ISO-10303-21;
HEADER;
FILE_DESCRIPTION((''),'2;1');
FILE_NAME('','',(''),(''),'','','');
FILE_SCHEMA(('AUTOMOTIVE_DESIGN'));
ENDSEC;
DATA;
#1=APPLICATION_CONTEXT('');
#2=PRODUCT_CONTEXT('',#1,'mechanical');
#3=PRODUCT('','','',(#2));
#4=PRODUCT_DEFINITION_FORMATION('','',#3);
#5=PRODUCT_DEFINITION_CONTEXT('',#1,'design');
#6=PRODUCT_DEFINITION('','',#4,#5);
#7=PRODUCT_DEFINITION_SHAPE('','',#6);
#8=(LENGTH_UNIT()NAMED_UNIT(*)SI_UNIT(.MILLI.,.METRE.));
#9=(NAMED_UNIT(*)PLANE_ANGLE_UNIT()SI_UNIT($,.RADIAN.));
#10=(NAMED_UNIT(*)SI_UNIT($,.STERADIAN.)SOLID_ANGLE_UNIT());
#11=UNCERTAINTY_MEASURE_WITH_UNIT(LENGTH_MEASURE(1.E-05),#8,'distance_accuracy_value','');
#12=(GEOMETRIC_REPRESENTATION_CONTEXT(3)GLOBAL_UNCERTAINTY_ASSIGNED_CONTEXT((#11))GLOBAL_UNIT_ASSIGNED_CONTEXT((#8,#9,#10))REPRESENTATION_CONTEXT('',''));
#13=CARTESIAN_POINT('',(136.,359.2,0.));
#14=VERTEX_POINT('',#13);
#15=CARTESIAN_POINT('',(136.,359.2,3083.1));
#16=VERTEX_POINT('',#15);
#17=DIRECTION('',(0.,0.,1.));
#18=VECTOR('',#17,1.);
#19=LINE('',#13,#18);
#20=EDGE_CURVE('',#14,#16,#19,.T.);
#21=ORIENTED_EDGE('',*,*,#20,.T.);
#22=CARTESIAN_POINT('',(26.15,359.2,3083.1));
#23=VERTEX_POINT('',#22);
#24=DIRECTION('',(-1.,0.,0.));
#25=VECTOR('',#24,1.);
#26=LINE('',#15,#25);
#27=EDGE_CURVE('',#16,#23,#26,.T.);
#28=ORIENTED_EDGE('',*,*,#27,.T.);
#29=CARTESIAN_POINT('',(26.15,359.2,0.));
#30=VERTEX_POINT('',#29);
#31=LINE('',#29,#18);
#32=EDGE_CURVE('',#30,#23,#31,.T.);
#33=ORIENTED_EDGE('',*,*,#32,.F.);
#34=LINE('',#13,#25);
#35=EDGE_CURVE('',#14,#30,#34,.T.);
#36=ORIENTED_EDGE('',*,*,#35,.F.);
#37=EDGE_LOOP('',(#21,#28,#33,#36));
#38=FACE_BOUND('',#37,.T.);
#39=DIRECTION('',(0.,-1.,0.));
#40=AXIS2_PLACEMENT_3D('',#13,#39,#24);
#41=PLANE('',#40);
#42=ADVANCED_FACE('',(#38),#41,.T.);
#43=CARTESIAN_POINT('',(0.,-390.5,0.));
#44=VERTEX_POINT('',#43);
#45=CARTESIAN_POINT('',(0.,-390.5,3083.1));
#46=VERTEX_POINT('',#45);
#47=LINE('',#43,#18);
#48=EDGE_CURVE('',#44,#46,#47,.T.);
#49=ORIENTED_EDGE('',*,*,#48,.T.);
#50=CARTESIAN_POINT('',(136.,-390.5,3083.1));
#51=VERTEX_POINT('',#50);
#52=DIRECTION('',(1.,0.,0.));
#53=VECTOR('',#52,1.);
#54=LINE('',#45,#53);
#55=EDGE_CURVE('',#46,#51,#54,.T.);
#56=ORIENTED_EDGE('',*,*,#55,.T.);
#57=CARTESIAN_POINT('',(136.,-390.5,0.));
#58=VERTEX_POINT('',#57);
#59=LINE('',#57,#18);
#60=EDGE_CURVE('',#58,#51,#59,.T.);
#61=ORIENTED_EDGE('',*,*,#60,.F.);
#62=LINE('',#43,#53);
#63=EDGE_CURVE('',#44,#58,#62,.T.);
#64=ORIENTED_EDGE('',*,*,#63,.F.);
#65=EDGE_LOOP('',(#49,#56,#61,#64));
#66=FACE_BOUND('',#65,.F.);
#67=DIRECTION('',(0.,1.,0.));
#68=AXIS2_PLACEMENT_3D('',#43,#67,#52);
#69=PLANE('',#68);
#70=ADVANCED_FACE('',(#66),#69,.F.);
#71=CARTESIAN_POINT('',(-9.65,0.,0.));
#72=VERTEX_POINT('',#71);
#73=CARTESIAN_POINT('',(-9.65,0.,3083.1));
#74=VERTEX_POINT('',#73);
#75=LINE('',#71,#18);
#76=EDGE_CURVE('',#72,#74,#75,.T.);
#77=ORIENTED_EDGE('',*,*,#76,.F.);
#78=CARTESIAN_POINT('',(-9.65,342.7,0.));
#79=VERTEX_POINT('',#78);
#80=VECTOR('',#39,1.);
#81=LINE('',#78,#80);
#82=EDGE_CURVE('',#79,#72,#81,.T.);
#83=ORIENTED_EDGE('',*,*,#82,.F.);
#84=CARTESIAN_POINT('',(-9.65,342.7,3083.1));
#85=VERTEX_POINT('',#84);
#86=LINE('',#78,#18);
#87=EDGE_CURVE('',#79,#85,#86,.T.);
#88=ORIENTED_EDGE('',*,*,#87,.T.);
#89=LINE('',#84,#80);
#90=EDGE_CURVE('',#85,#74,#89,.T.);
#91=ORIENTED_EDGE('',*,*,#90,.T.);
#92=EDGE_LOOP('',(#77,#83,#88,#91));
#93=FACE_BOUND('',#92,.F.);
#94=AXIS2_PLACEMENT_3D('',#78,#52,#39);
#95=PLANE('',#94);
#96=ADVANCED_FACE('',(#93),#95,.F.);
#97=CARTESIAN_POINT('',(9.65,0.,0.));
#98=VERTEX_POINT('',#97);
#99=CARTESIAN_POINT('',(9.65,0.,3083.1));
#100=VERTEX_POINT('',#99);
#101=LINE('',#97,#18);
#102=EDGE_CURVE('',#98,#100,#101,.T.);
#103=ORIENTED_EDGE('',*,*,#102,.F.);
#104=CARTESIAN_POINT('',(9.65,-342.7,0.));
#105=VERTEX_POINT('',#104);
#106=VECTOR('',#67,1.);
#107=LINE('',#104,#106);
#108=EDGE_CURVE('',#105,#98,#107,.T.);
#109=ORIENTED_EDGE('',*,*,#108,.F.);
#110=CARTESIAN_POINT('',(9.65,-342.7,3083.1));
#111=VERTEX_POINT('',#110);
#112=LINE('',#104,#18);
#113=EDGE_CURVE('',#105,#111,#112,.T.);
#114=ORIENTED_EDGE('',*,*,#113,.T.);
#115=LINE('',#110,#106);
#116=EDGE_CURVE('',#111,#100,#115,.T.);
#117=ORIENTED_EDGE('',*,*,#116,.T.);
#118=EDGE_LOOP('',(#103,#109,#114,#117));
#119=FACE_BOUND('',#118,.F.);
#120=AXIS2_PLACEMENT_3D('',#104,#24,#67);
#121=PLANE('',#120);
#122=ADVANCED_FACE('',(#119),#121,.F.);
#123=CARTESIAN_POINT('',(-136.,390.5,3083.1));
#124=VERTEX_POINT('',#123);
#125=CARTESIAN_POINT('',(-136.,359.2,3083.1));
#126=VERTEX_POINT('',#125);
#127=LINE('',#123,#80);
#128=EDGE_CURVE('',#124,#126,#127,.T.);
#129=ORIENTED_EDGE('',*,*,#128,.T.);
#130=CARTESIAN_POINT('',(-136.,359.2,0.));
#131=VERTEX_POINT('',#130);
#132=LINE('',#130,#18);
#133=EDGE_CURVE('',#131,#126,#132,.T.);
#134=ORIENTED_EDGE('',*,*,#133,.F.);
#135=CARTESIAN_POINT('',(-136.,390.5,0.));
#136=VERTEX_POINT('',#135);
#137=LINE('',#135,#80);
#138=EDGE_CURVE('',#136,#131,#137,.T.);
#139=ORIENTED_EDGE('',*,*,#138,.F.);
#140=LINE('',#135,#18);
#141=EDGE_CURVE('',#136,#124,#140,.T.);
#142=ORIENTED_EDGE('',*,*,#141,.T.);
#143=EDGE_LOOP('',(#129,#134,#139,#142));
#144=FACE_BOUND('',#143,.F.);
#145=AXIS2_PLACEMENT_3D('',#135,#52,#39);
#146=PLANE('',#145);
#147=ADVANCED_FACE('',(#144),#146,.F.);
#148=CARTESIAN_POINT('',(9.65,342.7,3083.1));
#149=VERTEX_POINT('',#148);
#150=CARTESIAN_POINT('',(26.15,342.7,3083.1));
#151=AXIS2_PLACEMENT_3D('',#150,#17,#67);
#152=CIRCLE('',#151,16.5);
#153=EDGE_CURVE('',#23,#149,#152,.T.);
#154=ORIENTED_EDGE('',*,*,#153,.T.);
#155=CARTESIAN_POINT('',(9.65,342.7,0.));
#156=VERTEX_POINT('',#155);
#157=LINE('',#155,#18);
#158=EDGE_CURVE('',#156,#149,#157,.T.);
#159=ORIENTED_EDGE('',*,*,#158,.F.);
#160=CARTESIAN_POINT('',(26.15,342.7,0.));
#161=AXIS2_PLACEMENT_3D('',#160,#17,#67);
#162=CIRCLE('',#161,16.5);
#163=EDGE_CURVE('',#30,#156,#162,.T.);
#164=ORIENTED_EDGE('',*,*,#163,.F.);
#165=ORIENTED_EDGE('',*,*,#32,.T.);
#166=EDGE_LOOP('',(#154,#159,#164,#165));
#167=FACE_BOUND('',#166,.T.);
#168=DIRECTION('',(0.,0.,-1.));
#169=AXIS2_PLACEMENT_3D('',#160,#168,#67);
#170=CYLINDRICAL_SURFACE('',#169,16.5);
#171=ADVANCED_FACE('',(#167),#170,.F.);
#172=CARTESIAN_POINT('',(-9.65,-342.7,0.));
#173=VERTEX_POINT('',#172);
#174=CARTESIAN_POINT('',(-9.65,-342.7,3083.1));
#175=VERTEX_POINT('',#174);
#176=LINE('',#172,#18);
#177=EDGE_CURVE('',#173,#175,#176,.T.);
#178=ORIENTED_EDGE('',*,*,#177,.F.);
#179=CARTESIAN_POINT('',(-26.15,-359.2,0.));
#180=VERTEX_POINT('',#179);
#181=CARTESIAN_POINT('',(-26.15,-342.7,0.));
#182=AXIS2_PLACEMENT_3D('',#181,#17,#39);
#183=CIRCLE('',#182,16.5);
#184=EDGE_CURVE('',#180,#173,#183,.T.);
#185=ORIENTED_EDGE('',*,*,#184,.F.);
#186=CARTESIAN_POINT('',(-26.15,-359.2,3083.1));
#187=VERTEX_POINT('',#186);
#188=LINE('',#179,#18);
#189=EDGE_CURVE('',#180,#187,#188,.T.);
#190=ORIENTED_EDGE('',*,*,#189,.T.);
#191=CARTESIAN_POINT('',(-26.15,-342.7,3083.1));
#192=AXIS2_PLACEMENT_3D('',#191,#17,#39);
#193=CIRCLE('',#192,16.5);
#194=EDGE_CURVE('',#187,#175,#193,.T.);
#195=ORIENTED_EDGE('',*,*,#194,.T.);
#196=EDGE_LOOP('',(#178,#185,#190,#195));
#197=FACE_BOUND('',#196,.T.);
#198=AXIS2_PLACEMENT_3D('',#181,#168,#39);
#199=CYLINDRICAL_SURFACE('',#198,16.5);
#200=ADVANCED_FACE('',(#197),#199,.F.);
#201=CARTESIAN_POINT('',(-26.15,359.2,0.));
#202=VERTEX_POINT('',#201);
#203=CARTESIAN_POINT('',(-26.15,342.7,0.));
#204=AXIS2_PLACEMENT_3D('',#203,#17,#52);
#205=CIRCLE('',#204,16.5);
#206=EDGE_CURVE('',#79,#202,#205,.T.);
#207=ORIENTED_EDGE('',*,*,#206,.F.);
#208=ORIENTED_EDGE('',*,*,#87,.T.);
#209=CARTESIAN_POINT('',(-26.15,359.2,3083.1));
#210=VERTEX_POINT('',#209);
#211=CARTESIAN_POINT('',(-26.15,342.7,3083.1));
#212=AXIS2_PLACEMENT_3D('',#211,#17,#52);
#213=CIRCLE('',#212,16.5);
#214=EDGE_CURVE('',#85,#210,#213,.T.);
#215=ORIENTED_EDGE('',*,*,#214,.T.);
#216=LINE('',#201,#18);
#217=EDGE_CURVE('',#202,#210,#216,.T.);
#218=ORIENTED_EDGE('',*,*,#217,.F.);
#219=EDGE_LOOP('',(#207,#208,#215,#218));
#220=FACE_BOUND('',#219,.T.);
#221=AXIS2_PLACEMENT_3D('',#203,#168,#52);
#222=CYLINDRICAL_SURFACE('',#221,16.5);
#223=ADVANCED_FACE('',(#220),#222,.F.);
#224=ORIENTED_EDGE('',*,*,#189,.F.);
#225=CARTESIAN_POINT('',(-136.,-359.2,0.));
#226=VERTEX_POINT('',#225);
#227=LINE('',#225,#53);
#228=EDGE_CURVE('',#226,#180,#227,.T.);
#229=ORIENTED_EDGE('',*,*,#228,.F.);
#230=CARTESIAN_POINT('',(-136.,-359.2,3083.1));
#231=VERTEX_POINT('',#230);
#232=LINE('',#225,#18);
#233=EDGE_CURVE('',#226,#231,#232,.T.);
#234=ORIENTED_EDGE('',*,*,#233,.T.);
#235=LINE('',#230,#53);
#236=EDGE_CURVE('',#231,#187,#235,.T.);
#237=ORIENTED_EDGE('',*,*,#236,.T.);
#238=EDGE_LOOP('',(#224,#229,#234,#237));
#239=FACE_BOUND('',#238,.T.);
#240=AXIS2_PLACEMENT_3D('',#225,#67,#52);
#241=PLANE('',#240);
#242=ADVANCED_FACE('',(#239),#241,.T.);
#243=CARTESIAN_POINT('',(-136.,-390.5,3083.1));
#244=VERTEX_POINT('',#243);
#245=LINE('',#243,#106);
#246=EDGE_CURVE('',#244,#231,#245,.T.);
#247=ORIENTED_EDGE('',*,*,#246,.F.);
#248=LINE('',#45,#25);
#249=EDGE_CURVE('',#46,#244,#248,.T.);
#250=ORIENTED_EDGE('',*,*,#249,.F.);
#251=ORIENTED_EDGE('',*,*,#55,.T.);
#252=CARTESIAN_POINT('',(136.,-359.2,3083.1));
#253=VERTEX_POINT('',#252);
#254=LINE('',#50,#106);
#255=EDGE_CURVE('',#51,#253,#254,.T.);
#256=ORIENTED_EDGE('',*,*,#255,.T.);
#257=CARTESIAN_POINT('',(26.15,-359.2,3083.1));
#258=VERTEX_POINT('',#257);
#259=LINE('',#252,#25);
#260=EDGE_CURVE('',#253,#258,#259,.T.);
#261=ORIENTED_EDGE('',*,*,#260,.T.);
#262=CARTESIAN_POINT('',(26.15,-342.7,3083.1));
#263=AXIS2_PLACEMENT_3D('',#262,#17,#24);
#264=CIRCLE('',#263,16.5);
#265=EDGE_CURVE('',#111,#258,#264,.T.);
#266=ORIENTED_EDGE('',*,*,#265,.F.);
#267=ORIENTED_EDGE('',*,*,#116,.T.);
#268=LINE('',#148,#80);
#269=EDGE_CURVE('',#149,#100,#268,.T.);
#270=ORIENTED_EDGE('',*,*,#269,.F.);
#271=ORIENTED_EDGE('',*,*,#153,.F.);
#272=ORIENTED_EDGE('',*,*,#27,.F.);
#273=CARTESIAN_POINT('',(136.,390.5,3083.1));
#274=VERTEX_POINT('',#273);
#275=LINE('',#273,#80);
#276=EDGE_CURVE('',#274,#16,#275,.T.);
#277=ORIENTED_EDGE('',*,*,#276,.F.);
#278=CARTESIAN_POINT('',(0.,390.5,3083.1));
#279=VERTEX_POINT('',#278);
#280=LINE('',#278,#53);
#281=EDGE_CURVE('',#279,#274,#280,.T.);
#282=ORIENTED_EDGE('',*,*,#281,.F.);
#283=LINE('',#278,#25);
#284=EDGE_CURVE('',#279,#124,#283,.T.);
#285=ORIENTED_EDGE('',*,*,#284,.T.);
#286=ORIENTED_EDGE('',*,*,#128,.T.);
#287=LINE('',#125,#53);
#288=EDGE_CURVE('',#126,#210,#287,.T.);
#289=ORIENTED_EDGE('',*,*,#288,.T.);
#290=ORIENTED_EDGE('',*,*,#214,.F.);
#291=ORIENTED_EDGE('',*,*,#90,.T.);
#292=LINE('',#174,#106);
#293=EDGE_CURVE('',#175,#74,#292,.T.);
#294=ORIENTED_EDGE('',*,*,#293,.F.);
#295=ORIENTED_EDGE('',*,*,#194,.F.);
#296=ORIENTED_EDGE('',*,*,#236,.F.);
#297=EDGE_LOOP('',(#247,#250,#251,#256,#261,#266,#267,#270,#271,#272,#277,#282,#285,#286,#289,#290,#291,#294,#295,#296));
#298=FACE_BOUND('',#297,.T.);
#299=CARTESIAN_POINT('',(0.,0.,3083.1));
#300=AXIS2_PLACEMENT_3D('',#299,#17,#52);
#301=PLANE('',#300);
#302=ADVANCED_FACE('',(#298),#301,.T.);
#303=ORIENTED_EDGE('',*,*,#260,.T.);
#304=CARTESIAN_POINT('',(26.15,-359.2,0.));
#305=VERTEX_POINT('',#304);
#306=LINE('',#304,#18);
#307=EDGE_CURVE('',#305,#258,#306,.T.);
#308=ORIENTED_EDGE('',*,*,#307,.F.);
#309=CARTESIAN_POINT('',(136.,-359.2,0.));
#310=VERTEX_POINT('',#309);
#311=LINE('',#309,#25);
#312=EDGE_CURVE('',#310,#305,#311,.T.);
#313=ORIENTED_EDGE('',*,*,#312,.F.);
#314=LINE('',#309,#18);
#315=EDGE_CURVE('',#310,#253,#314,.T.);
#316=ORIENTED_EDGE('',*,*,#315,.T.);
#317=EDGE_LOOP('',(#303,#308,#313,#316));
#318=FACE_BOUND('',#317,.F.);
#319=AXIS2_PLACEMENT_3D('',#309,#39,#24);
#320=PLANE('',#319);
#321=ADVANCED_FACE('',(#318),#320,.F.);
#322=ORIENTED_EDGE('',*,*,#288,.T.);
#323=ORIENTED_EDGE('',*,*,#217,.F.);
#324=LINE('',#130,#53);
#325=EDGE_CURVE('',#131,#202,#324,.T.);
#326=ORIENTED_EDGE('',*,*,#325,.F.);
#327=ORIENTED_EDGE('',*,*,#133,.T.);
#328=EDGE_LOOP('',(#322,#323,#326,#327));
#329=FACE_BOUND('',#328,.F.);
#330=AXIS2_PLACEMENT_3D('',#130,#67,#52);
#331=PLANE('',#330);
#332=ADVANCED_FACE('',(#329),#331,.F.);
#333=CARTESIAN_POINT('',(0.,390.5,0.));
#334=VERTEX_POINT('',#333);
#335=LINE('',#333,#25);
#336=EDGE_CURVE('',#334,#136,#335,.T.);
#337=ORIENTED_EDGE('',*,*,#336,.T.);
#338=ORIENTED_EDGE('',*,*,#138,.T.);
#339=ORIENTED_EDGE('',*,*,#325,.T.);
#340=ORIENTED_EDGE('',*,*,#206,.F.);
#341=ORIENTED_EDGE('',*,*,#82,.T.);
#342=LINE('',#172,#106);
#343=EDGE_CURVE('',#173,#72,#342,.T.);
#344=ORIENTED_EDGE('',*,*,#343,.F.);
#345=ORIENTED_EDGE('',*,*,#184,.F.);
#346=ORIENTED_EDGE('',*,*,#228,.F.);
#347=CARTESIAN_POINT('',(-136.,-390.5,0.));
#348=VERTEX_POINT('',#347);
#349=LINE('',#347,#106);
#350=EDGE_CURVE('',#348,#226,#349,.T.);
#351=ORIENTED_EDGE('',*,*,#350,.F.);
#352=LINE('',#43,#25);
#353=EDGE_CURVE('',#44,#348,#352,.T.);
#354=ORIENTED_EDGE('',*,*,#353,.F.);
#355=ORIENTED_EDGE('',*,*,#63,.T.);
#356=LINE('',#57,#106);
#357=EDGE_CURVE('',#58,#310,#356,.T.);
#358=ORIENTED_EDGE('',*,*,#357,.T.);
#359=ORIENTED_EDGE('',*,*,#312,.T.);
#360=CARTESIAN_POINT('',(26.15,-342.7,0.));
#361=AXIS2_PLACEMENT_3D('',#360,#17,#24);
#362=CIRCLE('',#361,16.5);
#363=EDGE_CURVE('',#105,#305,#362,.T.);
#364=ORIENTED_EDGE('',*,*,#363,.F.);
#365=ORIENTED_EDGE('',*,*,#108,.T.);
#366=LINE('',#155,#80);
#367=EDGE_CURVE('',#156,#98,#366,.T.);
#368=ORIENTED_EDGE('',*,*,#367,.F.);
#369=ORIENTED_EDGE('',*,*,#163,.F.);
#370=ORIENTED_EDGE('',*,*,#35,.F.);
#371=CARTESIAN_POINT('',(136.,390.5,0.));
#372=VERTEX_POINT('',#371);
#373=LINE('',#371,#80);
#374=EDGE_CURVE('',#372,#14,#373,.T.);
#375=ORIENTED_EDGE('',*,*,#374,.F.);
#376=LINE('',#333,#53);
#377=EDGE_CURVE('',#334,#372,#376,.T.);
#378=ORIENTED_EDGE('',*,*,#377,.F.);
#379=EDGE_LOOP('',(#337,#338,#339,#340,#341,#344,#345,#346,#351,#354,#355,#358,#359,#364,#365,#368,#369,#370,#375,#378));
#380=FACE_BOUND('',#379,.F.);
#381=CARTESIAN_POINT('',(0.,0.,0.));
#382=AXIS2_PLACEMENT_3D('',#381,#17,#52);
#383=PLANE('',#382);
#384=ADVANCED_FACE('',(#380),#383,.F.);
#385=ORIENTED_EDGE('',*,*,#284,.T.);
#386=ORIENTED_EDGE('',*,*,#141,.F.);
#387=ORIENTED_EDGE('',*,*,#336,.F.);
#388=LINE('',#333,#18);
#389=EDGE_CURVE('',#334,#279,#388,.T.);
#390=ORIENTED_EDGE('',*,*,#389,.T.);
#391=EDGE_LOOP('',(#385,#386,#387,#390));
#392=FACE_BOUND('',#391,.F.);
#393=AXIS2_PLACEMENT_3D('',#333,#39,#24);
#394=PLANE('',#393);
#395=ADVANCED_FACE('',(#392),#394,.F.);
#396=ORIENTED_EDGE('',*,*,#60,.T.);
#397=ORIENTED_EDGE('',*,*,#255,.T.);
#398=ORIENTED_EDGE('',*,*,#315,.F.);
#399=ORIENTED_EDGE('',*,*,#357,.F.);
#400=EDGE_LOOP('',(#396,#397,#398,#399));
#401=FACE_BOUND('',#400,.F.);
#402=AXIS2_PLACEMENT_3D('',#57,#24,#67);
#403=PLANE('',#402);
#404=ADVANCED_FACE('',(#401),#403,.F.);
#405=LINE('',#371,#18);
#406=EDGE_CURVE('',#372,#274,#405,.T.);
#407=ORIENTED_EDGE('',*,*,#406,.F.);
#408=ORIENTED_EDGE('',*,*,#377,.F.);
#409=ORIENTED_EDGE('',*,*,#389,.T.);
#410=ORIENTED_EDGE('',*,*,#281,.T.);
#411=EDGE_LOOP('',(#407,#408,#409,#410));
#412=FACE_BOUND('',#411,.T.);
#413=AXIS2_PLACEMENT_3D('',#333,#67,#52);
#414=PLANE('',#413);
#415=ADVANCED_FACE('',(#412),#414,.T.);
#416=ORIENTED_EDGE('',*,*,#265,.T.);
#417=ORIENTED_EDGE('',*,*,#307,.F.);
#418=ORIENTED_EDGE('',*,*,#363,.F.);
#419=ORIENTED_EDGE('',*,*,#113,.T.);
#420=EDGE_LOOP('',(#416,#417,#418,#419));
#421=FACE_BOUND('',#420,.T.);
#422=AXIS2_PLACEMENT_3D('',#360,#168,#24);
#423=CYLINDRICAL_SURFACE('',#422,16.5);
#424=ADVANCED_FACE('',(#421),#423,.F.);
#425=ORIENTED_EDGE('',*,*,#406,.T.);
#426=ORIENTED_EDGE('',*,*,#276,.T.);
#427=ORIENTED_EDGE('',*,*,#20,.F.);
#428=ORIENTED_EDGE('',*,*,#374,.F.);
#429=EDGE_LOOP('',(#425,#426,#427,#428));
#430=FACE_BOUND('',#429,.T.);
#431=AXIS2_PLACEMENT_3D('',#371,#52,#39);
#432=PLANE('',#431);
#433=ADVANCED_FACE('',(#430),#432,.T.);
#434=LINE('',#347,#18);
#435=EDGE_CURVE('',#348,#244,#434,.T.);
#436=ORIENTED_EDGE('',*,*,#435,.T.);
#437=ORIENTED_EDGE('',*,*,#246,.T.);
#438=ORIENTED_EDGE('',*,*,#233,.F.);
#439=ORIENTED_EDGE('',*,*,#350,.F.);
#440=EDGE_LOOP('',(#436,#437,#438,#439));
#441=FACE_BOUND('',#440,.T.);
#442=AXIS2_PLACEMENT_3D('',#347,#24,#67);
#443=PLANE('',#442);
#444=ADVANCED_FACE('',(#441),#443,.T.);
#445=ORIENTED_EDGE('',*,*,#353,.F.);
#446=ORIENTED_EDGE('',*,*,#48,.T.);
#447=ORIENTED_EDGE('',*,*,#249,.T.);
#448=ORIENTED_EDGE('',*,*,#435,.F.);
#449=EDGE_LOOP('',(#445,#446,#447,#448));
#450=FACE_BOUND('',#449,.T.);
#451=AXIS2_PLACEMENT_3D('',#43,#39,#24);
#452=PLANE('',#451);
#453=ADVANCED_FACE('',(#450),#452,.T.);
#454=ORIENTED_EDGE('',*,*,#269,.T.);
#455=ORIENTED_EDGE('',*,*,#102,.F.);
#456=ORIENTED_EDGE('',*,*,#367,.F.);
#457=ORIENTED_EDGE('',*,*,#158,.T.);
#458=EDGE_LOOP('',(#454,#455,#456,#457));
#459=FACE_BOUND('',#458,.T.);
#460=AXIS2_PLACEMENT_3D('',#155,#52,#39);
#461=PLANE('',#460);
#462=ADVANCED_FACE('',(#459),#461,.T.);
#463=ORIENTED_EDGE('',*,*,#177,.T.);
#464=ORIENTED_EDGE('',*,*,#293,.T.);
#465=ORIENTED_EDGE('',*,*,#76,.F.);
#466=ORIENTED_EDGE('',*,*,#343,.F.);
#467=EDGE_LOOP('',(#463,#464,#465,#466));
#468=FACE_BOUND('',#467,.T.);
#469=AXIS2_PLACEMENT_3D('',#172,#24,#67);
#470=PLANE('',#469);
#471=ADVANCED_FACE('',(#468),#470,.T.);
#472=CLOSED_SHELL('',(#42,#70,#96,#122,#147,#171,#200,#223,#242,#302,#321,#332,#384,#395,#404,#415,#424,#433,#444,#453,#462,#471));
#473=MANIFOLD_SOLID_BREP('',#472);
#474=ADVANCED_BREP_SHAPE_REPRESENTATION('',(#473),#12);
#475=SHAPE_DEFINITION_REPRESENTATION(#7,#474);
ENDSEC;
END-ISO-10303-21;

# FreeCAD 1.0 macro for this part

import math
import FreeCAD as App
import Part
import Sketcher

V = App.Vector
Q = App.Units.Quantity

doc = App.newDocument("Part")
body = doc.addObject("PartDesign::Body", "Body")

sketch1 = body.newObject("Sketcher::SketchObject", "Sketch")
sketch1.AttachmentSupport = (doc.getObject("XY_Plane"), [""])
sketch1.MapMode = "FlatFace"
sketch1.addGeometry([
    Part.LineSegment(V(-136, -359.2, 0), V(-136, -390.5, 0)),
    Part.LineSegment(V(-136, -390.5, 0), V(136, -390.5, 0)),
    Part.LineSegment(V(136, -390.5, 0), V(136, -359.2, 0)),
    Part.LineSegment(V(136, -359.2, 0), V(26.15, -359.2, 0)),
    Part.ArcOfCircle(Part.Circle(V(26.15, -342.7, 0), V(0, 0, 1), 16.5), math.radians(180), math.radians(270)),
    Part.LineSegment(V(9.65, -342.7, 0), V(9.65, 342.7, 0)),
    Part.ArcOfCircle(Part.Circle(V(26.15, 342.7, 0), V(0, 0, 1), 16.5), math.radians(90), math.radians(180)),
    Part.LineSegment(V(26.15, 359.2, 0), V(136, 359.2, 0)),
    Part.LineSegment(V(136, 359.2, 0), V(136, 390.5, 0)),
    Part.LineSegment(V(136, 390.5, 0), V(-136, 390.5, 0)),
    Part.LineSegment(V(-136, 390.5, 0), V(-136, 359.2, 0)),
    Part.LineSegment(V(-136, 359.2, 0), V(-26.15, 359.2, 0)),
    Part.ArcOfCircle(Part.Circle(V(-26.15, 342.7, 0), V(0, 0, 1), 16.5), math.radians(0), math.radians(90)),
    Part.LineSegment(V(-9.65, 342.7, 0), V(-9.65, -342.7, 0)),
    Part.ArcOfCircle(Part.Circle(V(-26.15, -342.7, 0), V(0, 0, 1), 16.5), math.radians(-90), math.radians(0)),
    Part.LineSegment(V(-26.15, -359.2, 0), V(-136, -359.2, 0)),
], False)
sketch1.addConstraint([
    Sketcher.Constraint("Coincident", 0, 2, 1, 1),
    Sketcher.Constraint("Coincident", 1, 2, 2, 1),
    Sketcher.Constraint("Coincident", 2, 2, 3, 1),
    Sketcher.Constraint("Tangent", 3, 2, 4, 2),
    Sketcher.Constraint("Tangent", 4, 1, 5, 1),
    Sketcher.Constraint("Tangent", 5, 2, 6, 2),
    Sketcher.Constraint("Tangent", 6, 1, 7, 1),
    Sketcher.Constraint("Coincident", 7, 2, 8, 1),
    Sketcher.Constraint("Coincident", 8, 2, 9, 1),
    Sketcher.Constraint("Coincident", 9, 2, 10, 1),
    Sketcher.Constraint("Coincident", 10, 2, 11, 1),
    Sketcher.Constraint("Tangent", 11, 2, 12, 2),
    Sketcher.Constraint("Tangent", 12, 1, 13, 1),
    Sketcher.Constraint("Tangent", 13, 2, 14, 2),
    Sketcher.Constraint("Tangent", 14, 1, 15, 1),
    Sketcher.Constraint("Coincident", 15, 2, 0, 1),
    Sketcher.Constraint("Vertical", 0),
    Sketcher.Constraint("Horizontal", 1),
    Sketcher.Constraint("Vertical", 2),
    Sketcher.Constraint("Horizontal", 3),
    Sketcher.Constraint("Vertical", 5),
    Sketcher.Constraint("Horizontal", 7),
    Sketcher.Constraint("Vertical", 8),
    Sketcher.Constraint("Horizontal", 9),
    Sketcher.Constraint("Vertical", 10),
    Sketcher.Constraint("Horizontal", 11),
    Sketcher.Constraint("Vertical", 13),
    Sketcher.Constraint("Horizontal", 15),
    Sketcher.Constraint("Equal", 4, 6),
    Sketcher.Constraint("Equal", 6, 12),
    Sketcher.Constraint("Equal", 12, 14),
    Sketcher.Constraint("Symmetric", 4, 3, 12, 3, -1, 1),
    Sketcher.Constraint("Symmetric", 0, 2, 8, 2, -1, 1),
    Sketcher.Constraint("Symmetric", 7, 2, 10, 2, -2),
    Sketcher.Constraint("Symmetric", 2, 2, 15, 2, -2),
    Sketcher.Constraint("Radius", 4, Q("16.5 mm")),
    Sketcher.Constraint("DistanceY", 0, 2, 0, 1, Q("31.3 mm")),
    Sketcher.Constraint("DistanceX", 0, 2, -1, 1, Q("136 mm")),
    Sketcher.Constraint("DistanceY", 0, 2, -1, 1, Q("390.5 mm")),
    Sketcher.Constraint("DistanceX", -1, 1, 4, 1, Q("9.65 mm")),
])
pad1 = body.newObject("PartDesign::Pad", "Pad")
pad1.Profile = sketch1
pad1.Length = 3083.1

doc.recompute()
